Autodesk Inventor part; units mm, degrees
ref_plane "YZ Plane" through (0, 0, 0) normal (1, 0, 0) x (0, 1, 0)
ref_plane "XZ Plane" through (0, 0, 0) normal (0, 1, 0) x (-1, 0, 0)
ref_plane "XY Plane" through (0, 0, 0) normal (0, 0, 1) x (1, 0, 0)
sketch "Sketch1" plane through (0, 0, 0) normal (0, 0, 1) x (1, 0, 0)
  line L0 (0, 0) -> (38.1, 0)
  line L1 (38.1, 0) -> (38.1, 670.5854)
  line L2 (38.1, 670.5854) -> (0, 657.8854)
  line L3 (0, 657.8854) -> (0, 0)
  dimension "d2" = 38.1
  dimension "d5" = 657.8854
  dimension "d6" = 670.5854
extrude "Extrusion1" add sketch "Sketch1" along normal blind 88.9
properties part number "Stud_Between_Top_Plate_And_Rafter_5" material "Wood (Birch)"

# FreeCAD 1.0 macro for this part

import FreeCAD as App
import Part
import Sketcher
Q = App.Units.Quantity

doc = App.newDocument("Part")
body = doc.addObject("PartDesign::Body", "Body")

sketch1 = doc.addObject("Sketcher::SketchObject", "Sketch")
body.addObject(sketch1)
sketch1.AttachmentSupport = (doc.XY_Plane, [""])
sketch1.MapMode = "FlatFace"
sketch1.addGeometry([
    Part.LineSegment(App.Vector(0, 658, 0), App.Vector(0, 0, 0)),
    Part.LineSegment(App.Vector(0, 0, 0), App.Vector(38, 0, 0)),
    Part.LineSegment(App.Vector(38, 0, 0), App.Vector(38, 671, 0)),
    Part.LineSegment(App.Vector(38, 671, 0), App.Vector(0, 658, 0)),
], False)
sketch1.addConstraint([
    Sketcher.Constraint("Coincident", 0, 2, 1, 1),
    Sketcher.Constraint("Coincident", 1, 2, 2, 1),
    Sketcher.Constraint("Coincident", 2, 2, 3, 1),
    Sketcher.Constraint("Coincident", 3, 2, 0, 1),
    Sketcher.Constraint("Vertical", 0),
    Sketcher.Constraint("Horizontal", 1),
    Sketcher.Constraint("Vertical", 2),
    Sketcher.Constraint("Coincident", 0, 2, -1, 1),
    Sketcher.Constraint("DistanceX", 1, 1, 1, 2, Q("1.5 in")),
    Sketcher.Constraint("DistanceY", 0, 2, 0, 1, Q("25.901 in")),
    Sketcher.Constraint("DistanceY", 2, 1, 2, 2, Q("26.401 in")),
])
pad1 = doc.addObject("PartDesign::Pad", "Pad")
body.addObject(pad1)
pad1.Profile = sketch1
pad1.Length = Q("3.5 in")

doc.recompute()
